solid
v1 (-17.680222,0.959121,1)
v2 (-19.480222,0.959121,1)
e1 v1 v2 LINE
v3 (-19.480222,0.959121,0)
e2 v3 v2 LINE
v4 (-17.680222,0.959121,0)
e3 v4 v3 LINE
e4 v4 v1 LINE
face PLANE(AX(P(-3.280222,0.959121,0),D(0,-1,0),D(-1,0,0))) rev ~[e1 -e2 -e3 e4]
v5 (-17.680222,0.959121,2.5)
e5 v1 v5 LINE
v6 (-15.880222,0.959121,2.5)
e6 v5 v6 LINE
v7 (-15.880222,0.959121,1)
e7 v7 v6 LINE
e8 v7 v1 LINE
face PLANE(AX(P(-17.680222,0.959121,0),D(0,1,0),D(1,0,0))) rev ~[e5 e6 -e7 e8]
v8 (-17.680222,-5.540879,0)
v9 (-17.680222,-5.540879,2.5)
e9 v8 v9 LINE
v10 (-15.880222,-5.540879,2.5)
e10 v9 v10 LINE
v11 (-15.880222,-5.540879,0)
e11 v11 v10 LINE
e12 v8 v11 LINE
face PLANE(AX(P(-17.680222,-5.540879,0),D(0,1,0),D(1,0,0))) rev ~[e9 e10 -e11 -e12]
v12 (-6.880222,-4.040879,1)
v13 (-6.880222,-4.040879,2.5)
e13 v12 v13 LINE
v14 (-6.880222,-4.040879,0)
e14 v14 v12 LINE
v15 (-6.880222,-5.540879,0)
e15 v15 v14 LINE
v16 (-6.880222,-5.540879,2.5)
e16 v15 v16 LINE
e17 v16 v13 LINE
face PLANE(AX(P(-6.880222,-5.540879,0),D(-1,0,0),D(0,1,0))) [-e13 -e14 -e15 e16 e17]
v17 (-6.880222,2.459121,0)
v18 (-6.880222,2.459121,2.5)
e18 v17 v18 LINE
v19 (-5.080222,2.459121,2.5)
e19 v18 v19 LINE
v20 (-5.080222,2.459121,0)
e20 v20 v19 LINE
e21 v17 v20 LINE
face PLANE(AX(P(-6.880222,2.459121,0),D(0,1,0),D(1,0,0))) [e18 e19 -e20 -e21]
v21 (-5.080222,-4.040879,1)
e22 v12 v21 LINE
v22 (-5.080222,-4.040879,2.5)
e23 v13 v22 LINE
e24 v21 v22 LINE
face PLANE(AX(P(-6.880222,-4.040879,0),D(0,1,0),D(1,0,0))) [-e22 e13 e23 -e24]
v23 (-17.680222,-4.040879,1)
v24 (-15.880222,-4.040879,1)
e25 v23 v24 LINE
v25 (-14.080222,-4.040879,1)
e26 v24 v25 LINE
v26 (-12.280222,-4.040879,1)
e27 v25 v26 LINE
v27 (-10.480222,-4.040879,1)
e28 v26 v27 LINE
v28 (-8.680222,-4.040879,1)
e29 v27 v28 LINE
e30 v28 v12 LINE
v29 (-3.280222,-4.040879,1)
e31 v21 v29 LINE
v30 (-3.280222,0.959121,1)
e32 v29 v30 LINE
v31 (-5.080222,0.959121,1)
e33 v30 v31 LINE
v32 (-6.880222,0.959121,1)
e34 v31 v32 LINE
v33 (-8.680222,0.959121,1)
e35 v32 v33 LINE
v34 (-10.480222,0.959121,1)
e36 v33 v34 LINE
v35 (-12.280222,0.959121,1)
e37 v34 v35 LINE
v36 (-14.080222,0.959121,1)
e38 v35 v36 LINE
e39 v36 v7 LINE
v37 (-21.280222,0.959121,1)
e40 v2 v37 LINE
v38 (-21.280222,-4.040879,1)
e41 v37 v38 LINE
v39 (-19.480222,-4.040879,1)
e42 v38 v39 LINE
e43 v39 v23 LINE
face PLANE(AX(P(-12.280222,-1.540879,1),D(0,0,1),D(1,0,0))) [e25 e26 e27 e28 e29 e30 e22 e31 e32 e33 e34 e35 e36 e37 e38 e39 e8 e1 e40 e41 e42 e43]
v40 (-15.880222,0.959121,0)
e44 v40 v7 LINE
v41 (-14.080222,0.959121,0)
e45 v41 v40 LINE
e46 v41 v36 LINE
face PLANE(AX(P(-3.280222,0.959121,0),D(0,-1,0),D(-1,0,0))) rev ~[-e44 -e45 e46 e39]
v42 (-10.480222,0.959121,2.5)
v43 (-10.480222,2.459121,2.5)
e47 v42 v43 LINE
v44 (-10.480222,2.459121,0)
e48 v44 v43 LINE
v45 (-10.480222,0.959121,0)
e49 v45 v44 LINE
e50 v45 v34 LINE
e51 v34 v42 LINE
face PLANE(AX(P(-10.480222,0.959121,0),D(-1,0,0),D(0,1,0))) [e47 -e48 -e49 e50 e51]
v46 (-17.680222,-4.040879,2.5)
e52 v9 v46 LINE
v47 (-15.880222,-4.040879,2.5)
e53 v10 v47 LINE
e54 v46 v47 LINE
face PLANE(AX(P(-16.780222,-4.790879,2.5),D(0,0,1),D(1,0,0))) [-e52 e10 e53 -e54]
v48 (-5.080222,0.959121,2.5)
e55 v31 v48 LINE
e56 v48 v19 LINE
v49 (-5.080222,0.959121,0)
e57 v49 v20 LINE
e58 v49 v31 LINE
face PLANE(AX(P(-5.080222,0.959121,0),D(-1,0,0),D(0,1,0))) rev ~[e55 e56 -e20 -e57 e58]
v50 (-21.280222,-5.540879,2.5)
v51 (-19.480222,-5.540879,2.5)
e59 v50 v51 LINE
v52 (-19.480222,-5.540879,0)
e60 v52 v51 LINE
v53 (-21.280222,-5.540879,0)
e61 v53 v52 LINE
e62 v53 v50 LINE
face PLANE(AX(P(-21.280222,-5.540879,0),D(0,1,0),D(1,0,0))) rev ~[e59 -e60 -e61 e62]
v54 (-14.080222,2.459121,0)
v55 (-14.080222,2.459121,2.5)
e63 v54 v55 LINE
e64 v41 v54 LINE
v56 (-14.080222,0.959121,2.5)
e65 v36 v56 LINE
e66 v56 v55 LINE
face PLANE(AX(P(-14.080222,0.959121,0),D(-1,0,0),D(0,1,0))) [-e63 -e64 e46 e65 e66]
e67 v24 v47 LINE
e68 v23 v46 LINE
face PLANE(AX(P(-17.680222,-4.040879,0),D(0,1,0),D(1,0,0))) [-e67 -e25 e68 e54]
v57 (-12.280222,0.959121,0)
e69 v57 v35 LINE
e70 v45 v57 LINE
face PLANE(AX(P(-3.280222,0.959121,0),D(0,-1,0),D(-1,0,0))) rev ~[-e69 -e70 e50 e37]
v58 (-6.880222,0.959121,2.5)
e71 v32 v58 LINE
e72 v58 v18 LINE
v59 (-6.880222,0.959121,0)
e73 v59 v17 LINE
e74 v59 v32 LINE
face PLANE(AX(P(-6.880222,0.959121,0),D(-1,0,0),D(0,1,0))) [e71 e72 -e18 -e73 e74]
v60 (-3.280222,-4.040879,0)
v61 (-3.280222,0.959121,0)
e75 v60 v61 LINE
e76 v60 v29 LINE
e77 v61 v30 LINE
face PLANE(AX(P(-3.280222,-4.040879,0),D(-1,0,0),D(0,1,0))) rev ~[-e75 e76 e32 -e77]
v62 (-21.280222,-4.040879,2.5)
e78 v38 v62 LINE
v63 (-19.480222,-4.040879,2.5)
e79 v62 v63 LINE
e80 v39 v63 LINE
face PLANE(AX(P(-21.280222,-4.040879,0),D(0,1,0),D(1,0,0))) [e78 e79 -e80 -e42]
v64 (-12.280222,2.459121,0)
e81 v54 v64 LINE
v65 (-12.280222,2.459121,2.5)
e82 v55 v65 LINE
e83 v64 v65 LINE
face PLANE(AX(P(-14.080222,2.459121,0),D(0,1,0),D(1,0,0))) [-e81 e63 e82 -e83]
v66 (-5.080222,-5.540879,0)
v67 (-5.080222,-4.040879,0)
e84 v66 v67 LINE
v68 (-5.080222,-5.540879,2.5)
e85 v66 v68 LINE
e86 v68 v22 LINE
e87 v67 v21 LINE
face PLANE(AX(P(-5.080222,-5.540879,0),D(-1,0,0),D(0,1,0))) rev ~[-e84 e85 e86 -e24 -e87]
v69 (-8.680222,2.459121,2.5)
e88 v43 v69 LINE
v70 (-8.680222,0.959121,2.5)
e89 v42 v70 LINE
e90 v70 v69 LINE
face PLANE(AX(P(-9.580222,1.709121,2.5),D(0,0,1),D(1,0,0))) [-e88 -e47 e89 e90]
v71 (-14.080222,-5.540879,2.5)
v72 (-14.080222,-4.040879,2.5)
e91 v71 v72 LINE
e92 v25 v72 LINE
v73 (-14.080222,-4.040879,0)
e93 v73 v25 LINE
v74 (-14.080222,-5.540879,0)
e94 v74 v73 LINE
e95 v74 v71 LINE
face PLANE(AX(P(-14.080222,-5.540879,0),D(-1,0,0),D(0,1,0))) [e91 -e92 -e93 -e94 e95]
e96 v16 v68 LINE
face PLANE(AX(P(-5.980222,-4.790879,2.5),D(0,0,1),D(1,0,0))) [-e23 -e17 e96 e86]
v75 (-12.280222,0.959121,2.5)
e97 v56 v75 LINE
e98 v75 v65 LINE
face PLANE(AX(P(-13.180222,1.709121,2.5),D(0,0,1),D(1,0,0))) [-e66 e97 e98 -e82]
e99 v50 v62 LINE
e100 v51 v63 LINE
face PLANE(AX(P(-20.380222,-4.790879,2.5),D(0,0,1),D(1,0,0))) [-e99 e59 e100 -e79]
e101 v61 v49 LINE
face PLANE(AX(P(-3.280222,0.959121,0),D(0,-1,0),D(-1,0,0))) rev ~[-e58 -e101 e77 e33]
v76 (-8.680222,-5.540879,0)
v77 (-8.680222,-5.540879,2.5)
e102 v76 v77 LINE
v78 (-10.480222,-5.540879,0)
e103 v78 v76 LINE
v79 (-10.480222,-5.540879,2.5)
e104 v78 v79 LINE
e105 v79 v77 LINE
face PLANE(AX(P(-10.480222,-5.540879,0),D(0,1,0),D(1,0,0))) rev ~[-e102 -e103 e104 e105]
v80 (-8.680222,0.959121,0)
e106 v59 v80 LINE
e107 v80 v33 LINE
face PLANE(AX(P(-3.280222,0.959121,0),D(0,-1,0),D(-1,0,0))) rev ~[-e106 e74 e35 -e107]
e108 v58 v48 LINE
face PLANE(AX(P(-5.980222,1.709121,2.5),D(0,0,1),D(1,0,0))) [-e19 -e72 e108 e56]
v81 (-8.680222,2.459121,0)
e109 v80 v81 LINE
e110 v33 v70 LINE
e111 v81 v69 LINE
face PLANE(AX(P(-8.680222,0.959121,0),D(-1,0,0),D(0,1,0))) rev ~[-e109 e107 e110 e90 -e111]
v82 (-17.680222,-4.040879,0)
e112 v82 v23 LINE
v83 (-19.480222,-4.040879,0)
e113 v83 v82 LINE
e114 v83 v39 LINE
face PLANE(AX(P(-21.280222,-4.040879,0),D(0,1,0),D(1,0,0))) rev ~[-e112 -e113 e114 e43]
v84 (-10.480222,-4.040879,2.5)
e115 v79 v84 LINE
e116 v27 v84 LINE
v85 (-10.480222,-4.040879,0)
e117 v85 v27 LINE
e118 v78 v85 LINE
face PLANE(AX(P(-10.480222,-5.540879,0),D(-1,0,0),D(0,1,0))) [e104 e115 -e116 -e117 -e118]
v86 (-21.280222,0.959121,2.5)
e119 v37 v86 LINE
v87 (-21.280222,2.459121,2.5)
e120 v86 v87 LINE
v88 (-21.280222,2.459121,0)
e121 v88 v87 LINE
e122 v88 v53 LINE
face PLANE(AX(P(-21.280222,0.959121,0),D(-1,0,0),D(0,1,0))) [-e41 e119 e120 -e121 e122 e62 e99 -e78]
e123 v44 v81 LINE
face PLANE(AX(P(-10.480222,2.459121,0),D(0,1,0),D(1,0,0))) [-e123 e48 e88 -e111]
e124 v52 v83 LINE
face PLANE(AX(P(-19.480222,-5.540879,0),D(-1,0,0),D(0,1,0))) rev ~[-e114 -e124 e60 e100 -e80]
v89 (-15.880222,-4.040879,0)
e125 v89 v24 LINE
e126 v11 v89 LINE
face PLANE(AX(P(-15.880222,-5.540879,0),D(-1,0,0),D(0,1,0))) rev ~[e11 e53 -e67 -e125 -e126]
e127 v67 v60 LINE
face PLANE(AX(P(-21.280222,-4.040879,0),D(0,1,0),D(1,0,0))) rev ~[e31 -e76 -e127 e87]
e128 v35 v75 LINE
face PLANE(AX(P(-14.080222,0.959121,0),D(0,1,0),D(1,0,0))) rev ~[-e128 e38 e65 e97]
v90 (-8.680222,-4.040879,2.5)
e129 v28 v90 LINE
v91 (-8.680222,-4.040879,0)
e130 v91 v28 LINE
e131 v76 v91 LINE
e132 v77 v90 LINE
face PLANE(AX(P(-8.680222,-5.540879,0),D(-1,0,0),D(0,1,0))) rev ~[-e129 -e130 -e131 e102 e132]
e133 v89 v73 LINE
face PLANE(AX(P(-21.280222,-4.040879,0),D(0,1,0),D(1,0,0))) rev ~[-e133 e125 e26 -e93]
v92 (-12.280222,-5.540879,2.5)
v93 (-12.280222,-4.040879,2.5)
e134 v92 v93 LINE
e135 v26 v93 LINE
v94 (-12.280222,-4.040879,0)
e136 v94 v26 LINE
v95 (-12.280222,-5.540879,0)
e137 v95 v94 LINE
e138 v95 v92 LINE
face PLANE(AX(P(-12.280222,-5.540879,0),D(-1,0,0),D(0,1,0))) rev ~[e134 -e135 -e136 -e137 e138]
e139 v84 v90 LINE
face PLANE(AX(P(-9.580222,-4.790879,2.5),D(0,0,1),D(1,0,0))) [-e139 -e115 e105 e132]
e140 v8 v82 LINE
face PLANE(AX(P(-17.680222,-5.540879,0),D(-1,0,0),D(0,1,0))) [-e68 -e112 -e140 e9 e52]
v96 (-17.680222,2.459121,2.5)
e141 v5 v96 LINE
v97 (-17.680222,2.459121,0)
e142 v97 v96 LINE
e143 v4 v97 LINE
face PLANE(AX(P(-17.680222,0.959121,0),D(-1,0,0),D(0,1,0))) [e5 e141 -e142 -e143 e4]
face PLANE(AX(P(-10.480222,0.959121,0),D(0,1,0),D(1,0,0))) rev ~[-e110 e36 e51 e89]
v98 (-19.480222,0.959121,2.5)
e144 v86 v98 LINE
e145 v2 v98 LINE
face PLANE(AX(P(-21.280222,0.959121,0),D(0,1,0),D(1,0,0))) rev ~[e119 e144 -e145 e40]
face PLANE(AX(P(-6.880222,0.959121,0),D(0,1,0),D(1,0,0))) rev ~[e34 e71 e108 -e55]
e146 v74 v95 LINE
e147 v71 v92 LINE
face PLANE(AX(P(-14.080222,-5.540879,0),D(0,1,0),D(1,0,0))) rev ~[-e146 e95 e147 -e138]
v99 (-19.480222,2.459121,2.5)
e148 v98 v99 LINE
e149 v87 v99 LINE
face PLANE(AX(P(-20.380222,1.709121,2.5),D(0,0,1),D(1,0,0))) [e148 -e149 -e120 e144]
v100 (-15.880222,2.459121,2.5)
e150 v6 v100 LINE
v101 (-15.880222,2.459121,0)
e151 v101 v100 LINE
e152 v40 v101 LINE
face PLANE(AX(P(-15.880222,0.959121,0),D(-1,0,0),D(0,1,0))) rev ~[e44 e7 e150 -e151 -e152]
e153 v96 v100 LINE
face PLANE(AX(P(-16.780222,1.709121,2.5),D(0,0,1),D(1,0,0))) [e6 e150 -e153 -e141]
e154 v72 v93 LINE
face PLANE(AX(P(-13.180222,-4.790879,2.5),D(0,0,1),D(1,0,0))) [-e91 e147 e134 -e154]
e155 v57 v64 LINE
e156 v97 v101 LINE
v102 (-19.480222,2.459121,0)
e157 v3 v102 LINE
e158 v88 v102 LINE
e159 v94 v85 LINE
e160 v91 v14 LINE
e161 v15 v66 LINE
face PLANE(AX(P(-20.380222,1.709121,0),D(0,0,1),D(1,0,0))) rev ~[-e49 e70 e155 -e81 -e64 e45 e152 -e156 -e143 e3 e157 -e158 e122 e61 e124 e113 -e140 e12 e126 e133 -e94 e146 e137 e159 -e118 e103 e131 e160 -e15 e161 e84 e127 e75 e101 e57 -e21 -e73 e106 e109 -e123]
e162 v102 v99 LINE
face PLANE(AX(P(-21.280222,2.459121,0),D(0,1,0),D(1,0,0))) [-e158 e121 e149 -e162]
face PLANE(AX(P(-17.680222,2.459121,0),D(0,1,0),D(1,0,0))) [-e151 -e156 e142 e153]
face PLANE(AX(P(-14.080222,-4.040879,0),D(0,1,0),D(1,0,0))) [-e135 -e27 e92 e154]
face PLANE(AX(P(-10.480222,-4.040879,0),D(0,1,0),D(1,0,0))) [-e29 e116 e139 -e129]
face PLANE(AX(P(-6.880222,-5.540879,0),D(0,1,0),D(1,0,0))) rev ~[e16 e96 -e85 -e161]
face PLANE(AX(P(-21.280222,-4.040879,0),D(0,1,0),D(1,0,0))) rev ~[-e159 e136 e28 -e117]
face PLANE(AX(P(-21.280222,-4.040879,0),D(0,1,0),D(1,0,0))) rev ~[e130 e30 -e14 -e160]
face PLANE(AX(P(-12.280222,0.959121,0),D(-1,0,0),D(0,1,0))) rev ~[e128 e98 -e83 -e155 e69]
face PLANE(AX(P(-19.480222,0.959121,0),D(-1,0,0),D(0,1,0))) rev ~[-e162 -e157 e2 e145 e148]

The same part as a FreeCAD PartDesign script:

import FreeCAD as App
import Part
import Sketcher
from FreeCAD import Vector


def add_polygon(sketch, points):
    """Adds a closed chain of lines whose ends are joined by coincident constraints."""
    first, n = sketch.GeometryCount, len(points)
    for a, b in zip(points, points[1:] + points[:1]):
        sketch.addGeometry(Part.LineSegment(App.Vector(*a, 0), App.Vector(*b, 0)), False)
    for i in range(n):
        sketch.addConstraint(Sketcher.Constraint("Coincident", first + i, 2, first + (i + 1) % n, 1))

doc = App.newDocument("Part")
body = doc.addObject("PartDesign::Body", "Body")

# Sketch on XY plane
sketch1 = body.newObject("Sketcher::SketchObject", "Sketch")
sketch1.AttachmentSupport = (doc.getObject("XY_Plane"), [""])
sketch1.MapMode = "FlatFace"
add_polygon(sketch1, [(-21.280222, 0.959121), (-21.280222, -4.040879), (-3.280222, -4.040879), (-3.280222, 0.959121)])  # lines 0-3
sketch1.addConstraint([
    Sketcher.Constraint("Vertical", 0),
    Sketcher.Constraint("Horizontal", 1),
    Sketcher.Constraint("Vertical", 2),
    Sketcher.Constraint("Horizontal", 3),
    Sketcher.Constraint("DistanceX", 1, 1, 1, 2, 18.0),
    Sketcher.Constraint("DistanceY", 0, 2, 0, 1, 5.0),
    Sketcher.Constraint("DistanceX", 0, 2, -1, 1, 21.280222),
    Sketcher.Constraint("DistanceY", 0, 2, -1, 1, 4.040879),
])
pad1 = body.newObject("PartDesign::Pad", "Pad")
pad1.Profile = sketch1
pad1.Length = 1

# Sketch on XY plane
sketch2 = body.newObject("Sketcher::SketchObject", "Sketch001")
sketch2.AttachmentSupport = (doc.getObject("XY_Plane"), [""])
sketch2.MapMode = "FlatFace"
add_polygon(sketch2, [(-21.280222, 2.459121), (-21.280222, 0.959121), (-19.480222, 0.959121), (-19.480222, 2.459121)])  # lines 0-3
add_polygon(sketch2, [(-17.680222, 2.459121), (-17.680222, 0.959121), (-15.880222, 0.959121), (-15.880222, 2.459121)])  # lines 4-7
add_polygon(sketch2, [(-14.080222, 2.459121), (-14.080222, 0.959121), (-12.280222, 0.959121), (-12.280222, 2.459121)])  # lines 8-11
add_polygon(sketch2, [(-10.480222, 2.459121), (-10.480222, 0.959121), (-8.680222, 0.959121), (-8.680222, 2.459121)])  # lines 12-15
add_polygon(sketch2, [(-6.880222, 2.459121), (-6.880222, 0.959121), (-5.080222, 0.959121), (-5.080222, 2.459121)])  # lines 16-19
add_polygon(sketch2, [(-6.880222, -4.040879), (-6.880222, -5.540879), (-5.080222, -5.540879), (-5.080222, -4.040879)])  # lines 20-23
add_polygon(sketch2, [(-10.480222, -4.040879), (-10.480222, -5.540879), (-8.680222, -5.540879), (-8.680222, -4.040879)])  # lines 24-27
add_polygon(sketch2, [(-14.080222, -4.040879), (-14.080222, -5.540879), (-12.280222, -5.540879), (-12.280222, -4.040879)])  # lines 28-31
add_polygon(sketch2, [(-17.680222, -4.040879), (-17.680222, -5.540879), (-15.880222, -5.540879), (-15.880222, -4.040879)])  # lines 32-35
add_polygon(sketch2, [(-21.280222, -4.040879), (-21.280222, -5.540879), (-19.480222, -5.540879), (-19.480222, -4.040879)])  # lines 36-39
sketch2.addConstraint([
    Sketcher.Constraint("Vertical", 0),
    Sketcher.Constraint("Horizontal", 1),
    Sketcher.Constraint("Vertical", 2),
    Sketcher.Constraint("Horizontal", 3),
    Sketcher.Constraint("Vertical", 4),
    Sketcher.Constraint("Horizontal", 5),
    Sketcher.Constraint("Vertical", 6),
    Sketcher.Constraint("Horizontal", 7),
    Sketcher.Constraint("Vertical", 8),
    Sketcher.Constraint("Horizontal", 9),
    Sketcher.Constraint("Vertical", 10),
    Sketcher.Constraint("Horizontal", 11),
    Sketcher.Constraint("Vertical", 12),
    Sketcher.Constraint("Horizontal", 13),
    Sketcher.Constraint("Vertical", 14),
    Sketcher.Constraint("Horizontal", 15),
    Sketcher.Constraint("Vertical", 16),
    Sketcher.Constraint("Horizontal", 17),
    Sketcher.Constraint("Vertical", 18),
    Sketcher.Constraint("Horizontal", 19),
    Sketcher.Constraint("Vertical", 20),
    Sketcher.Constraint("Horizontal", 21),
    Sketcher.Constraint("Vertical", 22),
    Sketcher.Constraint("Horizontal", 23),
    Sketcher.Constraint("Vertical", 24),
    Sketcher.Constraint("Horizontal", 25),
    Sketcher.Constraint("Vertical", 26),
    Sketcher.Constraint("Horizontal", 27),
    Sketcher.Constraint("Vertical", 28),
    Sketcher.Constraint("Horizontal", 29),
    Sketcher.Constraint("Vertical", 30),
    Sketcher.Constraint("Horizontal", 31),
    Sketcher.Constraint("Vertical", 32),
    Sketcher.Constraint("Horizontal", 33),
    Sketcher.Constraint("Vertical", 34),
    Sketcher.Constraint("Horizontal", 35),
    Sketcher.Constraint("Vertical", 36),
    Sketcher.Constraint("Horizontal", 37),
    Sketcher.Constraint("Vertical", 38),
    Sketcher.Constraint("Horizontal", 39),
    Sketcher.Constraint("Horizontal", 1, 2, 4, 2),
    Sketcher.Constraint("Horizontal", 3, 2, 6, 2),
    Sketcher.Constraint("Horizontal", 5, 2, 8, 2),
    Sketcher.Constraint("Horizontal", 7, 2, 10, 2),
    Sketcher.Constraint("Horizontal", 9, 2, 12, 2),
    Sketcher.Constraint("Horizontal", 11, 2, 14, 2),
    Sketcher.Constraint("Horizontal", 13, 2, 16, 2),
    Sketcher.Constraint("Horizontal", 15, 2, 18, 2),
    Sketcher.Constraint("Horizontal", 21, 2, 24, 2),
    Sketcher.Constraint("Horizontal", 23, 2, 26, 2),
    Sketcher.Constraint("Horizontal", 25, 2, 28, 2),
    Sketcher.Constraint("Horizontal", 27, 2, 30, 2),
    Sketcher.Constraint("Horizontal", 29, 2, 32, 2),
    Sketcher.Constraint("Horizontal", 31, 2, 34, 2),
    Sketcher.Constraint("Horizontal", 33, 2, 36, 2),
    Sketcher.Constraint("Horizontal", 35, 2, 38, 2),
    Sketcher.Constraint("Vertical", 19, 2, 20, 2),
    Sketcher.Constraint("Vertical", 18, 2, 21, 2),
    Sketcher.Constraint("Vertical", 15, 2, 24, 2),
    Sketcher.Constraint("Vertical", 14, 2, 25, 2),
    Sketcher.Constraint("Vertical", 11, 2, 28, 2),
    Sketcher.Constraint("Vertical", 10, 2, 29, 2),
    Sketcher.Constraint("Vertical", 7, 2, 32, 2),
    Sketcher.Constraint("Vertical", 6, 2, 33, 2),
    Sketcher.Constraint("Vertical", 3, 2, 36, 2),
    Sketcher.Constraint("Vertical", 2, 2, 37, 2),
    Sketcher.Constraint("Equal", 3, 5),
    Sketcher.Constraint("Equal", 7, 9),
    Sketcher.Constraint("Equal", 11, 13),
    Sketcher.Constraint("Equal", 15, 17),
    Sketcher.Constraint("Equal", 18, 20),
    Sketcher.Constraint("DistanceX", 1, 1, 1, 2, 1.8),
    Sketcher.Constraint("DistanceY", 0, 2, 0, 1, 1.5),
    Sketcher.Constraint("DistanceY", 20, 2, 19, 2, 8.0),
    Sketcher.Constraint("DistanceX", 1, 2, 4, 2, 1.8),
    Sketcher.Constraint("DistanceX", 5, 2, 8, 2, 1.8),
    Sketcher.Constraint("DistanceX", 9, 2, 12, 2, 1.8),
    Sketcher.Constraint("DistanceX", 13, 2, 16, 2, 1.8),
    Sketcher.Constraint("DistanceX", 0, 2, -1, 1, 21.280222),
    Sketcher.Constraint("DistanceY", -1, 1, 0, 2, 0.959121),
])
pad2 = body.newObject("PartDesign::Pad", "Pad001")
pad2.Profile = sketch2
pad2.Length = 2.5

doc.recompute()
